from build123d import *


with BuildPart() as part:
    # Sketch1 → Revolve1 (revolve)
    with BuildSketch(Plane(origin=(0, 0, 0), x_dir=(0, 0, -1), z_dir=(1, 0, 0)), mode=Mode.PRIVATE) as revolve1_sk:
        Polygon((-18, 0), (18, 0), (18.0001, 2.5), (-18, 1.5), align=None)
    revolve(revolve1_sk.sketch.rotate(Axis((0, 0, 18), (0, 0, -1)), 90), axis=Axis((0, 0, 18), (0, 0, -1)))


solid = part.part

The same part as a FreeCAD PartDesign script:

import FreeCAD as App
import Part
import Sketcher

V = App.Vector
Q = App.Units.Quantity


def add_polygon(sketch, points):
    """Adds a closed chain of lines whose ends are joined by coincident constraints."""
    first, n = sketch.GeometryCount, len(points)
    for a, b in zip(points, points[1:] + points[:1]):
        sketch.addGeometry(Part.LineSegment(App.Vector(*a, 0), App.Vector(*b, 0)), False)
    for i in range(n):
        sketch.addConstraint(Sketcher.Constraint("Coincident", first + i, 2, first + (i + 1) % n, 1))

doc = App.newDocument("Part")
body = doc.addObject("PartDesign::Body", "Body")

sketch1 = body.newObject("Sketcher::SketchObject", "Sketch")
sketch1.AttachmentSupport = (doc.getObject("YZ_Plane"), [""])
sketch1.MapMode = "FlatFace"
add_polygon(sketch1, [(0, 18), (0, -18), (2.5, -18), (1.5, 18)])
sketch1.addConstraint(Sketcher.Constraint("Vertical", 0))
sketch1.addConstraint(Sketcher.Constraint("Horizontal", 3))
sketch1.addConstraint(Sketcher.Constraint("Symmetric", 0, 2, 3, 2, -1, 1))
sketch1.addConstraint(Sketcher.Constraint("DistanceY", 0, 2, 0, 1, Q("36 mm")))
sketch1.addConstraint(Sketcher.Constraint("DistanceX", 3, 2, 3, 1, Q("1.5 mm")))
sketch1.addConstraint(Sketcher.Constraint("DistanceX", 2, 2, 1, 2, Q("1 mm")))
sketch1.addConstraint(Sketcher.Constraint("DistanceY", 1, 2, -1, 1, Q("18.0001 mm")))
revolution = body.newObject("PartDesign::Revolution", "Revolution")
revolution.Profile = sketch1
revolution.ReferenceAxis = (sketch1, ["V_Axis"])
revolution.Angle = 360

doc.recompute()
